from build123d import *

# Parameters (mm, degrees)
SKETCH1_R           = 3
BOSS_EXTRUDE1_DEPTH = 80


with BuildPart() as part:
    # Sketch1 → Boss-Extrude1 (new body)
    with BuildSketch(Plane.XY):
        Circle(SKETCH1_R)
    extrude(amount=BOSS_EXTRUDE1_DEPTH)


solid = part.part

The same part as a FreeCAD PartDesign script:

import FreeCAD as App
import Part
import Sketcher

V = App.Vector

doc = App.newDocument("Part")
body = doc.addObject("PartDesign::Body", "Body")

# Sketch on XY plane
sketch1 = body.newObject("Sketcher::SketchObject", "Sketch")
sketch1.AttachmentSupport = (doc.getObject("XY_Plane"), [""])
sketch1.MapMode = "FlatFace"
sketch1.addGeometry(Part.Circle(V(0, 0, 0), V(0, 0, 1), 3), False)
sketch1.addConstraint([
    Sketcher.Constraint("Coincident", 0, 3, -1, 1),
    Sketcher.Constraint("Diameter", 0, 6.0),
])
pad1 = body.newObject("PartDesign::Pad", "Pad")
pad1.Profile = sketch1
pad1.Length = 80

doc.recompute()
